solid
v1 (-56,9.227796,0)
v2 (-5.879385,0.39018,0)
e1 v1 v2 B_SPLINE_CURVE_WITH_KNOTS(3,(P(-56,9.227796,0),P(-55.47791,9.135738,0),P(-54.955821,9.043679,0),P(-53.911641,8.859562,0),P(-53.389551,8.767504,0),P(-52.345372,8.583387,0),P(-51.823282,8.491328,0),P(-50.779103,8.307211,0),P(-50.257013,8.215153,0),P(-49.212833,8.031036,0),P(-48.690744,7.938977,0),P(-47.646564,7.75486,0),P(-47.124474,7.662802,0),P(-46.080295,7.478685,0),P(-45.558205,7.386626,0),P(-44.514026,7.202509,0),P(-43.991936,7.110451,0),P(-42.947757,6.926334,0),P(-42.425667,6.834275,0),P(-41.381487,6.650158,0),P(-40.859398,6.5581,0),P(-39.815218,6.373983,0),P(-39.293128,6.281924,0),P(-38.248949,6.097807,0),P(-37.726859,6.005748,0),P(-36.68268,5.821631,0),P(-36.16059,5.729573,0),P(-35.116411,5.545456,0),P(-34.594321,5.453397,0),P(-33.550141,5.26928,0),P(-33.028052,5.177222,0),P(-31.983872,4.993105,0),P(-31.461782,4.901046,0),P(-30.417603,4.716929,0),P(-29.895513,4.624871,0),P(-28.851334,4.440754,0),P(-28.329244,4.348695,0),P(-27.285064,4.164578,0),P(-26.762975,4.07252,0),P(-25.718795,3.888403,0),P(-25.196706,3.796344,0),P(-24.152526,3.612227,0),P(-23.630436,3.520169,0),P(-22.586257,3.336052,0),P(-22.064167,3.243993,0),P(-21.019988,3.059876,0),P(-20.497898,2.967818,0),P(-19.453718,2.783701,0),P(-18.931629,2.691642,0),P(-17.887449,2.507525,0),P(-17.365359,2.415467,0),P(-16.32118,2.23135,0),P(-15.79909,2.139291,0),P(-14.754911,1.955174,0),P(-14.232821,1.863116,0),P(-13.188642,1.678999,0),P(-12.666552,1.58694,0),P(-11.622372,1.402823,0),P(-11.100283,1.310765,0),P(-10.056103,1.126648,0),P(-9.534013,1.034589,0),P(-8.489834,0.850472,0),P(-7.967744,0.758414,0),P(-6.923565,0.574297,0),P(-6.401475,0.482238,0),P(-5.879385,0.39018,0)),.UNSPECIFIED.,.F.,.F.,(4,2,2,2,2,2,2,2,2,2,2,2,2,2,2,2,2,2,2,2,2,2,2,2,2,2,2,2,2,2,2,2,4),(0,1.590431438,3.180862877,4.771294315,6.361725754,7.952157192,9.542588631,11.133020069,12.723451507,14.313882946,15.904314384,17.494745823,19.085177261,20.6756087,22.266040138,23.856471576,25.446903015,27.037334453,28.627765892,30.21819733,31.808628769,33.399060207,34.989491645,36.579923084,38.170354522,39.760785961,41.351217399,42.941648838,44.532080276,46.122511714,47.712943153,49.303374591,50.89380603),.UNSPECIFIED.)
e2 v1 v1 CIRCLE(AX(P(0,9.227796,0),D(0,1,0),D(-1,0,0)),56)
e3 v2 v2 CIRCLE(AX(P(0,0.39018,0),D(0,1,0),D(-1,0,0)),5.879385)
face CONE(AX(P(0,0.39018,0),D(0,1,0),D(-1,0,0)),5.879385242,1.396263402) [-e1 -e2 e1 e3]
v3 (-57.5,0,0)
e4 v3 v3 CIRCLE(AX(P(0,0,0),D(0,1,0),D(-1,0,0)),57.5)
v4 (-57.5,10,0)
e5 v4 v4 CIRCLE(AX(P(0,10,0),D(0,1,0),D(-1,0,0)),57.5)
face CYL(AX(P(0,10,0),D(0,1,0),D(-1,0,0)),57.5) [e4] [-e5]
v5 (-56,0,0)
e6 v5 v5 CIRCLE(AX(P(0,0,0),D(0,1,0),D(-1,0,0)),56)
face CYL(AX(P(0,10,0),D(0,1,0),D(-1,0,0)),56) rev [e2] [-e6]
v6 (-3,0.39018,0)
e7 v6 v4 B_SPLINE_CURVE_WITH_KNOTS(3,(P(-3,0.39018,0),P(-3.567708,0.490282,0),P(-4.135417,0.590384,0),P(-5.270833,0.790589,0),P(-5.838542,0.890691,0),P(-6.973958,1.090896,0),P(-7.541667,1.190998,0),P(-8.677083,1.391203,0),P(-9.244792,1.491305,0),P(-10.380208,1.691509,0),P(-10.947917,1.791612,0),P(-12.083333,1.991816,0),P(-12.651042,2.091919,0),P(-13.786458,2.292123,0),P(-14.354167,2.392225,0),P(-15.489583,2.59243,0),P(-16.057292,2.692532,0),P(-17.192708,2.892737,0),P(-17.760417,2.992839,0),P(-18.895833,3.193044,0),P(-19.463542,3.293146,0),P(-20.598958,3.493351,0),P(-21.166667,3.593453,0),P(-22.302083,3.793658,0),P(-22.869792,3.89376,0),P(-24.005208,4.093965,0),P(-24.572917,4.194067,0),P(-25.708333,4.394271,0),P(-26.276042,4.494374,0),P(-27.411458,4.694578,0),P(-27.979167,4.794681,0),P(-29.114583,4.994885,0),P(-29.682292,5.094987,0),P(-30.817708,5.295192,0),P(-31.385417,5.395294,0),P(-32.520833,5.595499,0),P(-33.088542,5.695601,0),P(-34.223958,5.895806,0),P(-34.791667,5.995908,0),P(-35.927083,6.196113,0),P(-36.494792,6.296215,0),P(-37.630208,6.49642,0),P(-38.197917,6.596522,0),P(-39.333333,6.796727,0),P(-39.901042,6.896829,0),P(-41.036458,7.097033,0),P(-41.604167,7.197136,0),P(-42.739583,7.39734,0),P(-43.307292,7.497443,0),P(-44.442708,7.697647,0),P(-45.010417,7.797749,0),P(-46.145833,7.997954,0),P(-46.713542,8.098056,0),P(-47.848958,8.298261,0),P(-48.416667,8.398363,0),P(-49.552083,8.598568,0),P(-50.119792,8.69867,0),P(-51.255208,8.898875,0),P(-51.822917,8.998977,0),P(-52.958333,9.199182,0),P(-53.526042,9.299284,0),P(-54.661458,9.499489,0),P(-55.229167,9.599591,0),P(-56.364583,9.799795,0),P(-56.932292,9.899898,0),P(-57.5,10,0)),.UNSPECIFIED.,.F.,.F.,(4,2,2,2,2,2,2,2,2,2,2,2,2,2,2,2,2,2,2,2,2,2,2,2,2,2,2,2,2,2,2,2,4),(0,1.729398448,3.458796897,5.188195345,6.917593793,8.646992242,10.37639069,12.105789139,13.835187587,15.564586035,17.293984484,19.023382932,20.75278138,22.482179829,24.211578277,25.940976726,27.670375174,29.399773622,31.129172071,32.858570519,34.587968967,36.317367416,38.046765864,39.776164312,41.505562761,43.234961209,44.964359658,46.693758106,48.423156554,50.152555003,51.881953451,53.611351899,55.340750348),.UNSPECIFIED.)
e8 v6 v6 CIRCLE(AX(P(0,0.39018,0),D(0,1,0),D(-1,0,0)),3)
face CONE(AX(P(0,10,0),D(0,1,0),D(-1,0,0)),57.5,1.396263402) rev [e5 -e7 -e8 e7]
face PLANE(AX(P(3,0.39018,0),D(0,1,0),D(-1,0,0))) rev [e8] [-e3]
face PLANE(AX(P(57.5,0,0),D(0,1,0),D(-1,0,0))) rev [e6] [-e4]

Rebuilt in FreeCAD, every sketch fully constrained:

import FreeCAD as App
import Part
import Sketcher

V = App.Vector
Q = App.Units.Quantity


def add_polygon(sketch, points):
    """Adds a closed chain of lines whose ends are joined by coincident constraints."""
    first, n = sketch.GeometryCount, len(points)
    for a, b in zip(points, points[1:] + points[:1]):
        sketch.addGeometry(Part.LineSegment(App.Vector(*a, 0), App.Vector(*b, 0)), False)
    for i in range(n):
        sketch.addConstraint(Sketcher.Constraint("Coincident", first + i, 2, first + (i + 1) % n, 1))

doc = App.newDocument("Part")
body = doc.addObject("PartDesign::Body", "Body")

sketch1 = doc.addObject("Sketcher::SketchObject", "Sketch")
body.addObject(sketch1)
sketch1.AttachmentSupport = (doc.XY_Plane, [""])
sketch1.MapMode = "FlatFace"
add_polygon(sketch1, [(57.5, 10), (3, 0.4), (5.9, 0.4), (56, 9.2), (56, 0), (57.5, 0)])
sketch1.addConstraint(Sketcher.Constraint("Horizontal", 1))
sketch1.addConstraint(Sketcher.Constraint("Vertical", 3))
sketch1.addConstraint(Sketcher.Constraint("Horizontal", 4))
sketch1.addConstraint(Sketcher.Constraint("Vertical", 5))
sketch1.addConstraint(Sketcher.Constraint("PointOnObject", 3, 2, -1))
sketch1.addConstraint(Sketcher.Constraint("Parallel", 0, 2))
sketch1.addConstraint(Sketcher.Constraint("DistanceY", 5, 1, 5, 2, Q("10 mm")))
sketch1.addConstraint(Sketcher.Constraint("Angle", 0, Q("-170 deg")))
sketch1.addConstraint(Sketcher.Constraint("DistanceX", 4, 1, 4, 2, Q("1.5 mm")))
sketch1.addConstraint(Sketcher.Constraint("DistanceX", -1, 1, 0, 2, Q("3 mm")))
sketch1.addConstraint(Sketcher.Constraint("DistanceX", -1, 1, 2, 2, Q("56 mm")))
sketch1.addConstraint(Sketcher.Constraint("DistanceX", 1, 1, 1, 2, Q("2.879385 mm")))
revolution = doc.addObject("PartDesign::Revolution", "Revolution")
body.addObject(revolution)
revolution.Profile = sketch1
revolution.ReferenceAxis = (sketch1, ["V_Axis"])
revolution.Angle = 360

doc.recompute()
